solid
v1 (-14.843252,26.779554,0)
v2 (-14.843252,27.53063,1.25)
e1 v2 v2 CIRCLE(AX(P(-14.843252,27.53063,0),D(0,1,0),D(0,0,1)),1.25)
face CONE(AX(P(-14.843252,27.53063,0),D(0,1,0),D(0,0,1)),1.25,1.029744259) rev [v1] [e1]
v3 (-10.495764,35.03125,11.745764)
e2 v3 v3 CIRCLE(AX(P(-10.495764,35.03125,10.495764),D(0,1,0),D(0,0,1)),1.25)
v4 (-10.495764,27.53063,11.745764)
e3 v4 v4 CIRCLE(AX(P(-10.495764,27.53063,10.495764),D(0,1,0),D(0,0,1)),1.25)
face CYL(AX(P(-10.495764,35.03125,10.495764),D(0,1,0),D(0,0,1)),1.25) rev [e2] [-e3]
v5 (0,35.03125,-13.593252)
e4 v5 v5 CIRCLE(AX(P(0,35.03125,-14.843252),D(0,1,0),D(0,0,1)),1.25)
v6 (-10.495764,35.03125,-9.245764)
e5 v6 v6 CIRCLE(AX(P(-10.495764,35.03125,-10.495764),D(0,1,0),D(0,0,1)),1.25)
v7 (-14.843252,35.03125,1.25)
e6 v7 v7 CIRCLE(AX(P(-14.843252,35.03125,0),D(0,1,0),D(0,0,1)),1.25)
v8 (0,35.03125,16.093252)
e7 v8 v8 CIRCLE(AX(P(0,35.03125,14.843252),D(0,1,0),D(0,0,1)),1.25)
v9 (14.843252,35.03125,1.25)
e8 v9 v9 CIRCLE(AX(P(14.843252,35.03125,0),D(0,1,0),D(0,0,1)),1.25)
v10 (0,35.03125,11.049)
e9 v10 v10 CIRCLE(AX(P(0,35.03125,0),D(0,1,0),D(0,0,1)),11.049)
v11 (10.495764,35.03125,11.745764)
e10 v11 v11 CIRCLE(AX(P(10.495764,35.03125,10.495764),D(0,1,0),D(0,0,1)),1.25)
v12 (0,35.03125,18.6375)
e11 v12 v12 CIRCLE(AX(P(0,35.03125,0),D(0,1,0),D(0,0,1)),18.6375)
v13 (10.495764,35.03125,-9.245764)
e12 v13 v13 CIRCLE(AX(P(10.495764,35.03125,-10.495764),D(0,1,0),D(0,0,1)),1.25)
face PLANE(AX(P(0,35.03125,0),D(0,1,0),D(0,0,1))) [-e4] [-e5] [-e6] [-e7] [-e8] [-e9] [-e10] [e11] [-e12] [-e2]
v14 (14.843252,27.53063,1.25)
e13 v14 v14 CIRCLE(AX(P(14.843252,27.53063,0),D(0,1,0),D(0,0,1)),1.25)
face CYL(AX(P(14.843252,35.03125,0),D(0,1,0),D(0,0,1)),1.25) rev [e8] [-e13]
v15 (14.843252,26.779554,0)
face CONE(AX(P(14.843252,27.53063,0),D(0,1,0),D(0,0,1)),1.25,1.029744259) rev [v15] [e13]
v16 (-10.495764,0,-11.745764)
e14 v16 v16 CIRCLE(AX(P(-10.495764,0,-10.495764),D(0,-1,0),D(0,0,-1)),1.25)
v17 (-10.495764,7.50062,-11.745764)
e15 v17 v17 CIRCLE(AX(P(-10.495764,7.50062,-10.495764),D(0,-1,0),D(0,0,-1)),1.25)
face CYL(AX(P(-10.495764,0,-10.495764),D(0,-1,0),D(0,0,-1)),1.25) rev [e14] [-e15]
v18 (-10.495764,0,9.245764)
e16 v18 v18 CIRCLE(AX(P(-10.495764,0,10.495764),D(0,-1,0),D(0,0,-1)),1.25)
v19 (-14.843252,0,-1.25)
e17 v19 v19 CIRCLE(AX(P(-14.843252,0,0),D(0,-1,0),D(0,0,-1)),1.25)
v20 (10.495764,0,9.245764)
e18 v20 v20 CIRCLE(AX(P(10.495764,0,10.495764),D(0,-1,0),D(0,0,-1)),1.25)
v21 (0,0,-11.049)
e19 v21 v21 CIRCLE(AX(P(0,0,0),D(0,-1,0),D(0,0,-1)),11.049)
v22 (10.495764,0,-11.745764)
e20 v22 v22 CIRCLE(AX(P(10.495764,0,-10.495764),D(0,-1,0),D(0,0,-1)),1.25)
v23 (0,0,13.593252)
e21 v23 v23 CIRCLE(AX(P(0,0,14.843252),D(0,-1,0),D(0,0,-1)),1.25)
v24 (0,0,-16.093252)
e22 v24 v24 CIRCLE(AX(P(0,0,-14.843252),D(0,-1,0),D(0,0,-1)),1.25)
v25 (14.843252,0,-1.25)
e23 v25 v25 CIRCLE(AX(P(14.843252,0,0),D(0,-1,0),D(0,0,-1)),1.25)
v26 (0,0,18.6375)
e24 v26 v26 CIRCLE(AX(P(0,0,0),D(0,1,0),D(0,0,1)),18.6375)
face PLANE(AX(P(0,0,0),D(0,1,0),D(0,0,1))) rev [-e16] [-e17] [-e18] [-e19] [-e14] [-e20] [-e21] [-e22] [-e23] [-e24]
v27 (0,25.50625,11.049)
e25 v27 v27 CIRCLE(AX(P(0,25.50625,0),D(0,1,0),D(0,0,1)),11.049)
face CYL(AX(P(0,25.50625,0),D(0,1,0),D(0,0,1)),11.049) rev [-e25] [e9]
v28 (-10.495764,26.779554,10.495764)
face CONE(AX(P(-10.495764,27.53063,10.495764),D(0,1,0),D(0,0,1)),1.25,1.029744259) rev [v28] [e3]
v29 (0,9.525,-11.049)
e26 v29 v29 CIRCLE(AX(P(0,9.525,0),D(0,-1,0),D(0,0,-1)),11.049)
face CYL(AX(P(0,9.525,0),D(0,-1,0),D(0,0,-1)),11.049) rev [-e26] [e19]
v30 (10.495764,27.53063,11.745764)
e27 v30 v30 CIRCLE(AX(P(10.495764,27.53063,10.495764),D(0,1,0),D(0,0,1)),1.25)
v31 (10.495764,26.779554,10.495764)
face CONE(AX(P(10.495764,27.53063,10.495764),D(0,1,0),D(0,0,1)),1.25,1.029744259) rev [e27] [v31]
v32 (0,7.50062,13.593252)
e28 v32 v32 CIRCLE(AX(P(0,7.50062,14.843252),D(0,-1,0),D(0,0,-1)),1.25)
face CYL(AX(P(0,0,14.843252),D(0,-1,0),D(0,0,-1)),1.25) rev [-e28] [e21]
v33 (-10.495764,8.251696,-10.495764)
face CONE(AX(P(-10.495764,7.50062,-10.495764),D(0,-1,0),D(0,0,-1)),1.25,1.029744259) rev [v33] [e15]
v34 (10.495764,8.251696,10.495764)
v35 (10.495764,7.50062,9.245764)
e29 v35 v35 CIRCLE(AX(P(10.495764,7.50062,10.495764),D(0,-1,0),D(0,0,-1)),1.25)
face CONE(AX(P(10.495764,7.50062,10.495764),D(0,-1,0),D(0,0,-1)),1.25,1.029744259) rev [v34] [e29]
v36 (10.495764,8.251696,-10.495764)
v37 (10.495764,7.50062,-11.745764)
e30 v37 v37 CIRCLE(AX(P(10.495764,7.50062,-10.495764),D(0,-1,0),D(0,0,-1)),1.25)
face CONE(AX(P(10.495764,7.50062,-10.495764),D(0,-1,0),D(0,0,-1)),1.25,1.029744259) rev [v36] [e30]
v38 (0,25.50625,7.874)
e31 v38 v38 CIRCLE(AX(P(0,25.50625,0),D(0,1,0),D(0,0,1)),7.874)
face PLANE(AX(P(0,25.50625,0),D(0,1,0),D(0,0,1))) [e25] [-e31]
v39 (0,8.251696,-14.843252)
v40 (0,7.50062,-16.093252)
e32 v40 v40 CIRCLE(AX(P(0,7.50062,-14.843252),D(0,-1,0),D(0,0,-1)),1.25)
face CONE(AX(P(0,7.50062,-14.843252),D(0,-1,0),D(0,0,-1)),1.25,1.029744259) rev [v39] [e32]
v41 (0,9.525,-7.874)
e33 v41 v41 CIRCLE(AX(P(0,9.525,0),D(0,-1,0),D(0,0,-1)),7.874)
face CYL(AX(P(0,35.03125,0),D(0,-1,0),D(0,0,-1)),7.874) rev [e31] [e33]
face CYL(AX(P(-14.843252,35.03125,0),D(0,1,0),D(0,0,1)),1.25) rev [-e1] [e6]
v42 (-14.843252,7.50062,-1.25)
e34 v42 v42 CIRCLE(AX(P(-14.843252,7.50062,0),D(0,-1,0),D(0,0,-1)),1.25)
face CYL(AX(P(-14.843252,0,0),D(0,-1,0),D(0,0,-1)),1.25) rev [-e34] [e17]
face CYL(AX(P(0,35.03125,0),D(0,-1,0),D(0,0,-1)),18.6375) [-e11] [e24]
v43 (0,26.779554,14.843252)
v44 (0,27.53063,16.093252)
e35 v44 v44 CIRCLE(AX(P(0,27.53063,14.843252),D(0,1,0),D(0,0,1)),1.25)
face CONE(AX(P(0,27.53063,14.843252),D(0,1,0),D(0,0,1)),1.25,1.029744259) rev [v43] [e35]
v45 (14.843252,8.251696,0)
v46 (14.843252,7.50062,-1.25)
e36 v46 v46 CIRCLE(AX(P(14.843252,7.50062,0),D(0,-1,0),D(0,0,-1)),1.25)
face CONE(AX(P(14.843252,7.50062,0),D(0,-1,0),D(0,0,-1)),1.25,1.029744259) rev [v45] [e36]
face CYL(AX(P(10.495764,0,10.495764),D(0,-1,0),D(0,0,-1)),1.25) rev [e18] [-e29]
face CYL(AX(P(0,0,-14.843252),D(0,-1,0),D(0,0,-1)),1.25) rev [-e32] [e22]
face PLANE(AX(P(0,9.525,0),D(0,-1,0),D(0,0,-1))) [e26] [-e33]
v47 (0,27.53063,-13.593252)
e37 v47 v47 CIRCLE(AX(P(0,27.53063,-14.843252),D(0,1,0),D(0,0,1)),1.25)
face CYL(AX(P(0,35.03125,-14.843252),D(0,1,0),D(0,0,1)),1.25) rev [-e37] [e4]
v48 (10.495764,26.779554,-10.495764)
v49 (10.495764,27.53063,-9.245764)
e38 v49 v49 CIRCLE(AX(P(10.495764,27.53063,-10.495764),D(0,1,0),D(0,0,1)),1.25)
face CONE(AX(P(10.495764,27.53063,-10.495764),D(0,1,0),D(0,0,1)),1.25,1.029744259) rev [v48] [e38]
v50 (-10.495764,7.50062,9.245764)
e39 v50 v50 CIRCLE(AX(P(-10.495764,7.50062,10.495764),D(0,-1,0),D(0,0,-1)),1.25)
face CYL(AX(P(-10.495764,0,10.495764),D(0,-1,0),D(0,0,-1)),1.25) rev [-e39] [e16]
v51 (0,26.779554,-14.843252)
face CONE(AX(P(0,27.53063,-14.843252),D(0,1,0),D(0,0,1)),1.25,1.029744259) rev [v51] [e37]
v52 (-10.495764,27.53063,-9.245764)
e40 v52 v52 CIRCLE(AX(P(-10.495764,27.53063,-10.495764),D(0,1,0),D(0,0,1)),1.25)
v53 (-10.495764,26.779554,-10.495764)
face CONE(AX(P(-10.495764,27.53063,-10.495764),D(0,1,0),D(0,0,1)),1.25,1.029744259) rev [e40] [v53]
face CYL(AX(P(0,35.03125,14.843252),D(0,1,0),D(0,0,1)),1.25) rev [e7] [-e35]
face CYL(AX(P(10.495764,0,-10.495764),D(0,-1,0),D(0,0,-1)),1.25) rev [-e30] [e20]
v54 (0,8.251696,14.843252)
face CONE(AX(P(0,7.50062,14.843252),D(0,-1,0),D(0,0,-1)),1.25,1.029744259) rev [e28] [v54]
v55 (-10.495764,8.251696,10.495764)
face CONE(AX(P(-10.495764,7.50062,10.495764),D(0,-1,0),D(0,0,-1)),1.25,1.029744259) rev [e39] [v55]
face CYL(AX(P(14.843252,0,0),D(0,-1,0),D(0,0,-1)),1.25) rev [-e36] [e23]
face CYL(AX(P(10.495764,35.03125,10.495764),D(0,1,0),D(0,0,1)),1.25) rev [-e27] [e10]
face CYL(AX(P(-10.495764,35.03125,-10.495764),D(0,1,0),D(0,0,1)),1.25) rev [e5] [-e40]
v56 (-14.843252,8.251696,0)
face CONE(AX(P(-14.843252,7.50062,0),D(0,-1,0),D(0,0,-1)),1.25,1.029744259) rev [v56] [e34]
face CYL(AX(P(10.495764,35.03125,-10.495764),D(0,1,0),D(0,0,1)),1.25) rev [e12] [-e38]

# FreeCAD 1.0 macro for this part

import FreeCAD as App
import Part
import Sketcher

V = App.Vector
Q = App.Units.Quantity

doc = App.newDocument("Part")
body = doc.addObject("PartDesign::Body", "Body")

sketch1 = body.newObject("Sketcher::SketchObject", "Sketch")
sketch1.AttachmentSupport = (doc.getObject("XZ_Plane"), [""])
sketch1.MapMode = "FlatFace"
sketch1.addGeometry(Part.Circle(V(0, 0, 0), V(0, 0, 1), 19), False)
sketch1.addConstraint([
    Sketcher.Constraint("Coincident", 0, 3, -1, 1),
    Sketcher.Constraint("Diameter", 0, Q("37.275 mm")),
])
pad1 = body.newObject("PartDesign::Pad", "Pad")
pad1.Profile = sketch1
pad1.Length = 35.03125
pad1.Reversed = True

sketch2 = body.newObject("Sketcher::SketchObject", "Sketch001")
sketch2.AttachmentSupport = (doc.getObject("XZ_Plane"), [""])
sketch2.MapMode = "FlatFace"
sketch2.addGeometry(Part.Circle(V(0, 0, 0), V(0, 0, 1), 11), False)
sketch2.addConstraint([
    Sketcher.Constraint("Coincident", 0, 3, -1, 1),
    Sketcher.Constraint("Diameter", 0, Q("0.87 in")),
])
pocket1 = body.newObject("PartDesign::Pocket", "Pocket")
pocket1.Profile = sketch2
pocket1.Length = Q("0.375 in")

sketch3 = body.newObject("Sketcher::SketchObject", "Sketch002")
sketch3.AttachmentSupport = (doc.getObject("XZ_Plane"), [""])
sketch3.MapMode = "FlatFace"
sketch3.AttachmentOffset = App.Placement(V(0, 0, -35.03125), App.Rotation())
sketch3.addGeometry(Part.Circle(V(0, 0, 0), V(0, 0, 1), 11), False)
sketch3.addConstraint([
    Sketcher.Constraint("Coincident", 0, 3, -1, 1),
    Sketcher.Constraint("Diameter", 0, Q("0.87 in")),
])
pocket2 = body.newObject("PartDesign::Pocket", "Pocket001")
pocket2.Profile = sketch3
pocket2.Length = Q("0.375 in")
pocket2.Reversed = True

sketch4 = body.newObject("Sketcher::SketchObject", "Sketch003")
sketch4.AttachmentSupport = (doc.getObject("XZ_Plane"), [""])
sketch4.MapMode = "FlatFace"
sketch4.addGeometry(Part.Circle(V(0, 0, 0), V(0, 0, 1), 8), False)
sketch4.addConstraint([
    Sketcher.Constraint("Coincident", 0, 3, -1, 1),
    Sketcher.Constraint("Diameter", 0, Q("0.62 in")),
])
pocket3 = body.newObject("PartDesign::Pocket", "Pocket002")
pocket3.Profile = sketch4
pocket3.Type = "ThroughAll"

sketch5 = body.newObject("Sketcher::SketchObject", "Sketch004")
sketch5.AttachmentSupport = (doc.getObject("XZ_Plane"), [""])
sketch5.MapMode = "FlatFace"
sketch5.addGeometry([
    Part.Circle(V(0, 14.8, 0), V(0, 0, 1), 1.2),
    Part.Circle(V(10.5, 10.5, 0), V(0, 0, 1), 1.2),
    Part.Circle(V(14.8, 0, 0), V(0, 0, 1), 1.2),
    Part.Circle(V(10.5, -10.5, 0), V(0, 0, 1), 1.2),
    Part.Circle(V(0, -14.8, 0), V(0, 0, 1), 1.2),
    Part.Circle(V(-10.5, -10.5, 0), V(0, 0, 1), 1.2),
    Part.Circle(V(-14.8, 0, 0), V(0, 0, 1), 1.2),
    Part.Circle(V(-10.5, 10.5, 0), V(0, 0, 1), 1.2),
], False)
sketch5.addConstraint([
    Sketcher.Constraint("Equal", 0, 1),
    Sketcher.Constraint("Equal", 1, 2),
    Sketcher.Constraint("Equal", 2, 3),
    Sketcher.Constraint("Equal", 3, 4),
    Sketcher.Constraint("Equal", 4, 5),
    Sketcher.Constraint("Equal", 5, 6),
    Sketcher.Constraint("Equal", 6, 7),
    Sketcher.Constraint("Symmetric", 0, 3, 4, 3, -1, 1),
    Sketcher.Constraint("Symmetric", 1, 3, 5, 3, -1, 1),
    Sketcher.Constraint("Symmetric", 2, 3, 6, 3, -1, 1),
    Sketcher.Constraint("Symmetric", 3, 3, 7, 3, -1, 1),
    Sketcher.Constraint("Symmetric", 3, 3, 5, 3, -2),
    Sketcher.Constraint("PointOnObject", 0, 3, -2),
    Sketcher.Constraint("PointOnObject", 2, 3, -1),
    Sketcher.Constraint("Diameter", 0, Q("2.5 mm")),
    Sketcher.Constraint("DistanceY", 3, 3, 1, 3, Q("20.991528 mm")),
    Sketcher.Constraint("DistanceX", 5, 3, 3, 3, Q("20.991528 mm")),
    Sketcher.Constraint("DistanceY", -1, 1, 0, 3, Q("14.843252 mm")),
    Sketcher.Constraint("DistanceX", -1, 1, 2, 3, Q("14.843252 mm")),
])
doc.recompute()
hole = body.newObject("PartDesign::Hole", "Hole")
hole.Profile = sketch5
hole.ThreadType = "None"
hole.Diameter = 2.5
hole.DepthType = "Dimension"
hole.Depth = Q("0.2953 in")
hole.DrillPoint = "Angled"
hole.DrillPointAngle = 118

sketch6 = body.newObject("Sketcher::SketchObject", "Sketch005")
sketch6.AttachmentSupport = (doc.getObject("XZ_Plane"), [""])
sketch6.MapMode = "FlatFace"
sketch6.AttachmentOffset = App.Placement(V(0, 0, -35.03125), App.Rotation())
sketch6.addGeometry([
    Part.Circle(V(0, 14.8, 0), V(0, 0, 1), 1.2),
    Part.Circle(V(10.5, 10.5, 0), V(0, 0, 1), 1.2),
    Part.Circle(V(14.8, 0, 0), V(0, 0, 1), 1.2),
    Part.Circle(V(10.5, -10.5, 0), V(0, 0, 1), 1.2),
    Part.Circle(V(0, -14.8, 0), V(0, 0, 1), 1.2),
    Part.Circle(V(-10.5, -10.5, 0), V(0, 0, 1), 1.2),
    Part.Circle(V(-14.8, 0, 0), V(0, 0, 1), 1.2),
    Part.Circle(V(-10.5, 10.5, 0), V(0, 0, 1), 1.2),
], False)
sketch6.addConstraint([
    Sketcher.Constraint("Equal", 0, 1),
    Sketcher.Constraint("Equal", 1, 2),
    Sketcher.Constraint("Equal", 2, 3),
    Sketcher.Constraint("Equal", 3, 4),
    Sketcher.Constraint("Equal", 4, 5),
    Sketcher.Constraint("Equal", 5, 6),
    Sketcher.Constraint("Equal", 6, 7),
    Sketcher.Constraint("Symmetric", 0, 3, 4, 3, -1, 1),
    Sketcher.Constraint("Symmetric", 1, 3, 5, 3, -1, 1),
    Sketcher.Constraint("Symmetric", 2, 3, 6, 3, -1, 1),
    Sketcher.Constraint("Symmetric", 3, 3, 7, 3, -1, 1),
    Sketcher.Constraint("Symmetric", 3, 3, 5, 3, -2),
    Sketcher.Constraint("PointOnObject", 0, 3, -2),
    Sketcher.Constraint("PointOnObject", 2, 3, -1),
    Sketcher.Constraint("Diameter", 0, Q("2.5 mm")),
    Sketcher.Constraint("DistanceY", 3, 3, 1, 3, Q("20.991528 mm")),
    Sketcher.Constraint("DistanceX", 5, 3, 3, 3, Q("20.991528 mm")),
    Sketcher.Constraint("DistanceY", -1, 1, 0, 3, Q("14.843252 mm")),
    Sketcher.Constraint("DistanceX", -1, 1, 2, 3, Q("14.843252 mm")),
])
doc.recompute()
hole2 = body.newObject("PartDesign::Hole", "Hole001")
hole2.Profile = sketch6
hole2.ThreadType = "None"
hole2.Diameter = 2.5
hole2.DepthType = "Dimension"
hole2.Depth = Q("0.2953 in")
hole2.DrillPoint = "Angled"
hole2.DrillPointAngle = 118
hole2.Reversed = True

doc.recompute()
